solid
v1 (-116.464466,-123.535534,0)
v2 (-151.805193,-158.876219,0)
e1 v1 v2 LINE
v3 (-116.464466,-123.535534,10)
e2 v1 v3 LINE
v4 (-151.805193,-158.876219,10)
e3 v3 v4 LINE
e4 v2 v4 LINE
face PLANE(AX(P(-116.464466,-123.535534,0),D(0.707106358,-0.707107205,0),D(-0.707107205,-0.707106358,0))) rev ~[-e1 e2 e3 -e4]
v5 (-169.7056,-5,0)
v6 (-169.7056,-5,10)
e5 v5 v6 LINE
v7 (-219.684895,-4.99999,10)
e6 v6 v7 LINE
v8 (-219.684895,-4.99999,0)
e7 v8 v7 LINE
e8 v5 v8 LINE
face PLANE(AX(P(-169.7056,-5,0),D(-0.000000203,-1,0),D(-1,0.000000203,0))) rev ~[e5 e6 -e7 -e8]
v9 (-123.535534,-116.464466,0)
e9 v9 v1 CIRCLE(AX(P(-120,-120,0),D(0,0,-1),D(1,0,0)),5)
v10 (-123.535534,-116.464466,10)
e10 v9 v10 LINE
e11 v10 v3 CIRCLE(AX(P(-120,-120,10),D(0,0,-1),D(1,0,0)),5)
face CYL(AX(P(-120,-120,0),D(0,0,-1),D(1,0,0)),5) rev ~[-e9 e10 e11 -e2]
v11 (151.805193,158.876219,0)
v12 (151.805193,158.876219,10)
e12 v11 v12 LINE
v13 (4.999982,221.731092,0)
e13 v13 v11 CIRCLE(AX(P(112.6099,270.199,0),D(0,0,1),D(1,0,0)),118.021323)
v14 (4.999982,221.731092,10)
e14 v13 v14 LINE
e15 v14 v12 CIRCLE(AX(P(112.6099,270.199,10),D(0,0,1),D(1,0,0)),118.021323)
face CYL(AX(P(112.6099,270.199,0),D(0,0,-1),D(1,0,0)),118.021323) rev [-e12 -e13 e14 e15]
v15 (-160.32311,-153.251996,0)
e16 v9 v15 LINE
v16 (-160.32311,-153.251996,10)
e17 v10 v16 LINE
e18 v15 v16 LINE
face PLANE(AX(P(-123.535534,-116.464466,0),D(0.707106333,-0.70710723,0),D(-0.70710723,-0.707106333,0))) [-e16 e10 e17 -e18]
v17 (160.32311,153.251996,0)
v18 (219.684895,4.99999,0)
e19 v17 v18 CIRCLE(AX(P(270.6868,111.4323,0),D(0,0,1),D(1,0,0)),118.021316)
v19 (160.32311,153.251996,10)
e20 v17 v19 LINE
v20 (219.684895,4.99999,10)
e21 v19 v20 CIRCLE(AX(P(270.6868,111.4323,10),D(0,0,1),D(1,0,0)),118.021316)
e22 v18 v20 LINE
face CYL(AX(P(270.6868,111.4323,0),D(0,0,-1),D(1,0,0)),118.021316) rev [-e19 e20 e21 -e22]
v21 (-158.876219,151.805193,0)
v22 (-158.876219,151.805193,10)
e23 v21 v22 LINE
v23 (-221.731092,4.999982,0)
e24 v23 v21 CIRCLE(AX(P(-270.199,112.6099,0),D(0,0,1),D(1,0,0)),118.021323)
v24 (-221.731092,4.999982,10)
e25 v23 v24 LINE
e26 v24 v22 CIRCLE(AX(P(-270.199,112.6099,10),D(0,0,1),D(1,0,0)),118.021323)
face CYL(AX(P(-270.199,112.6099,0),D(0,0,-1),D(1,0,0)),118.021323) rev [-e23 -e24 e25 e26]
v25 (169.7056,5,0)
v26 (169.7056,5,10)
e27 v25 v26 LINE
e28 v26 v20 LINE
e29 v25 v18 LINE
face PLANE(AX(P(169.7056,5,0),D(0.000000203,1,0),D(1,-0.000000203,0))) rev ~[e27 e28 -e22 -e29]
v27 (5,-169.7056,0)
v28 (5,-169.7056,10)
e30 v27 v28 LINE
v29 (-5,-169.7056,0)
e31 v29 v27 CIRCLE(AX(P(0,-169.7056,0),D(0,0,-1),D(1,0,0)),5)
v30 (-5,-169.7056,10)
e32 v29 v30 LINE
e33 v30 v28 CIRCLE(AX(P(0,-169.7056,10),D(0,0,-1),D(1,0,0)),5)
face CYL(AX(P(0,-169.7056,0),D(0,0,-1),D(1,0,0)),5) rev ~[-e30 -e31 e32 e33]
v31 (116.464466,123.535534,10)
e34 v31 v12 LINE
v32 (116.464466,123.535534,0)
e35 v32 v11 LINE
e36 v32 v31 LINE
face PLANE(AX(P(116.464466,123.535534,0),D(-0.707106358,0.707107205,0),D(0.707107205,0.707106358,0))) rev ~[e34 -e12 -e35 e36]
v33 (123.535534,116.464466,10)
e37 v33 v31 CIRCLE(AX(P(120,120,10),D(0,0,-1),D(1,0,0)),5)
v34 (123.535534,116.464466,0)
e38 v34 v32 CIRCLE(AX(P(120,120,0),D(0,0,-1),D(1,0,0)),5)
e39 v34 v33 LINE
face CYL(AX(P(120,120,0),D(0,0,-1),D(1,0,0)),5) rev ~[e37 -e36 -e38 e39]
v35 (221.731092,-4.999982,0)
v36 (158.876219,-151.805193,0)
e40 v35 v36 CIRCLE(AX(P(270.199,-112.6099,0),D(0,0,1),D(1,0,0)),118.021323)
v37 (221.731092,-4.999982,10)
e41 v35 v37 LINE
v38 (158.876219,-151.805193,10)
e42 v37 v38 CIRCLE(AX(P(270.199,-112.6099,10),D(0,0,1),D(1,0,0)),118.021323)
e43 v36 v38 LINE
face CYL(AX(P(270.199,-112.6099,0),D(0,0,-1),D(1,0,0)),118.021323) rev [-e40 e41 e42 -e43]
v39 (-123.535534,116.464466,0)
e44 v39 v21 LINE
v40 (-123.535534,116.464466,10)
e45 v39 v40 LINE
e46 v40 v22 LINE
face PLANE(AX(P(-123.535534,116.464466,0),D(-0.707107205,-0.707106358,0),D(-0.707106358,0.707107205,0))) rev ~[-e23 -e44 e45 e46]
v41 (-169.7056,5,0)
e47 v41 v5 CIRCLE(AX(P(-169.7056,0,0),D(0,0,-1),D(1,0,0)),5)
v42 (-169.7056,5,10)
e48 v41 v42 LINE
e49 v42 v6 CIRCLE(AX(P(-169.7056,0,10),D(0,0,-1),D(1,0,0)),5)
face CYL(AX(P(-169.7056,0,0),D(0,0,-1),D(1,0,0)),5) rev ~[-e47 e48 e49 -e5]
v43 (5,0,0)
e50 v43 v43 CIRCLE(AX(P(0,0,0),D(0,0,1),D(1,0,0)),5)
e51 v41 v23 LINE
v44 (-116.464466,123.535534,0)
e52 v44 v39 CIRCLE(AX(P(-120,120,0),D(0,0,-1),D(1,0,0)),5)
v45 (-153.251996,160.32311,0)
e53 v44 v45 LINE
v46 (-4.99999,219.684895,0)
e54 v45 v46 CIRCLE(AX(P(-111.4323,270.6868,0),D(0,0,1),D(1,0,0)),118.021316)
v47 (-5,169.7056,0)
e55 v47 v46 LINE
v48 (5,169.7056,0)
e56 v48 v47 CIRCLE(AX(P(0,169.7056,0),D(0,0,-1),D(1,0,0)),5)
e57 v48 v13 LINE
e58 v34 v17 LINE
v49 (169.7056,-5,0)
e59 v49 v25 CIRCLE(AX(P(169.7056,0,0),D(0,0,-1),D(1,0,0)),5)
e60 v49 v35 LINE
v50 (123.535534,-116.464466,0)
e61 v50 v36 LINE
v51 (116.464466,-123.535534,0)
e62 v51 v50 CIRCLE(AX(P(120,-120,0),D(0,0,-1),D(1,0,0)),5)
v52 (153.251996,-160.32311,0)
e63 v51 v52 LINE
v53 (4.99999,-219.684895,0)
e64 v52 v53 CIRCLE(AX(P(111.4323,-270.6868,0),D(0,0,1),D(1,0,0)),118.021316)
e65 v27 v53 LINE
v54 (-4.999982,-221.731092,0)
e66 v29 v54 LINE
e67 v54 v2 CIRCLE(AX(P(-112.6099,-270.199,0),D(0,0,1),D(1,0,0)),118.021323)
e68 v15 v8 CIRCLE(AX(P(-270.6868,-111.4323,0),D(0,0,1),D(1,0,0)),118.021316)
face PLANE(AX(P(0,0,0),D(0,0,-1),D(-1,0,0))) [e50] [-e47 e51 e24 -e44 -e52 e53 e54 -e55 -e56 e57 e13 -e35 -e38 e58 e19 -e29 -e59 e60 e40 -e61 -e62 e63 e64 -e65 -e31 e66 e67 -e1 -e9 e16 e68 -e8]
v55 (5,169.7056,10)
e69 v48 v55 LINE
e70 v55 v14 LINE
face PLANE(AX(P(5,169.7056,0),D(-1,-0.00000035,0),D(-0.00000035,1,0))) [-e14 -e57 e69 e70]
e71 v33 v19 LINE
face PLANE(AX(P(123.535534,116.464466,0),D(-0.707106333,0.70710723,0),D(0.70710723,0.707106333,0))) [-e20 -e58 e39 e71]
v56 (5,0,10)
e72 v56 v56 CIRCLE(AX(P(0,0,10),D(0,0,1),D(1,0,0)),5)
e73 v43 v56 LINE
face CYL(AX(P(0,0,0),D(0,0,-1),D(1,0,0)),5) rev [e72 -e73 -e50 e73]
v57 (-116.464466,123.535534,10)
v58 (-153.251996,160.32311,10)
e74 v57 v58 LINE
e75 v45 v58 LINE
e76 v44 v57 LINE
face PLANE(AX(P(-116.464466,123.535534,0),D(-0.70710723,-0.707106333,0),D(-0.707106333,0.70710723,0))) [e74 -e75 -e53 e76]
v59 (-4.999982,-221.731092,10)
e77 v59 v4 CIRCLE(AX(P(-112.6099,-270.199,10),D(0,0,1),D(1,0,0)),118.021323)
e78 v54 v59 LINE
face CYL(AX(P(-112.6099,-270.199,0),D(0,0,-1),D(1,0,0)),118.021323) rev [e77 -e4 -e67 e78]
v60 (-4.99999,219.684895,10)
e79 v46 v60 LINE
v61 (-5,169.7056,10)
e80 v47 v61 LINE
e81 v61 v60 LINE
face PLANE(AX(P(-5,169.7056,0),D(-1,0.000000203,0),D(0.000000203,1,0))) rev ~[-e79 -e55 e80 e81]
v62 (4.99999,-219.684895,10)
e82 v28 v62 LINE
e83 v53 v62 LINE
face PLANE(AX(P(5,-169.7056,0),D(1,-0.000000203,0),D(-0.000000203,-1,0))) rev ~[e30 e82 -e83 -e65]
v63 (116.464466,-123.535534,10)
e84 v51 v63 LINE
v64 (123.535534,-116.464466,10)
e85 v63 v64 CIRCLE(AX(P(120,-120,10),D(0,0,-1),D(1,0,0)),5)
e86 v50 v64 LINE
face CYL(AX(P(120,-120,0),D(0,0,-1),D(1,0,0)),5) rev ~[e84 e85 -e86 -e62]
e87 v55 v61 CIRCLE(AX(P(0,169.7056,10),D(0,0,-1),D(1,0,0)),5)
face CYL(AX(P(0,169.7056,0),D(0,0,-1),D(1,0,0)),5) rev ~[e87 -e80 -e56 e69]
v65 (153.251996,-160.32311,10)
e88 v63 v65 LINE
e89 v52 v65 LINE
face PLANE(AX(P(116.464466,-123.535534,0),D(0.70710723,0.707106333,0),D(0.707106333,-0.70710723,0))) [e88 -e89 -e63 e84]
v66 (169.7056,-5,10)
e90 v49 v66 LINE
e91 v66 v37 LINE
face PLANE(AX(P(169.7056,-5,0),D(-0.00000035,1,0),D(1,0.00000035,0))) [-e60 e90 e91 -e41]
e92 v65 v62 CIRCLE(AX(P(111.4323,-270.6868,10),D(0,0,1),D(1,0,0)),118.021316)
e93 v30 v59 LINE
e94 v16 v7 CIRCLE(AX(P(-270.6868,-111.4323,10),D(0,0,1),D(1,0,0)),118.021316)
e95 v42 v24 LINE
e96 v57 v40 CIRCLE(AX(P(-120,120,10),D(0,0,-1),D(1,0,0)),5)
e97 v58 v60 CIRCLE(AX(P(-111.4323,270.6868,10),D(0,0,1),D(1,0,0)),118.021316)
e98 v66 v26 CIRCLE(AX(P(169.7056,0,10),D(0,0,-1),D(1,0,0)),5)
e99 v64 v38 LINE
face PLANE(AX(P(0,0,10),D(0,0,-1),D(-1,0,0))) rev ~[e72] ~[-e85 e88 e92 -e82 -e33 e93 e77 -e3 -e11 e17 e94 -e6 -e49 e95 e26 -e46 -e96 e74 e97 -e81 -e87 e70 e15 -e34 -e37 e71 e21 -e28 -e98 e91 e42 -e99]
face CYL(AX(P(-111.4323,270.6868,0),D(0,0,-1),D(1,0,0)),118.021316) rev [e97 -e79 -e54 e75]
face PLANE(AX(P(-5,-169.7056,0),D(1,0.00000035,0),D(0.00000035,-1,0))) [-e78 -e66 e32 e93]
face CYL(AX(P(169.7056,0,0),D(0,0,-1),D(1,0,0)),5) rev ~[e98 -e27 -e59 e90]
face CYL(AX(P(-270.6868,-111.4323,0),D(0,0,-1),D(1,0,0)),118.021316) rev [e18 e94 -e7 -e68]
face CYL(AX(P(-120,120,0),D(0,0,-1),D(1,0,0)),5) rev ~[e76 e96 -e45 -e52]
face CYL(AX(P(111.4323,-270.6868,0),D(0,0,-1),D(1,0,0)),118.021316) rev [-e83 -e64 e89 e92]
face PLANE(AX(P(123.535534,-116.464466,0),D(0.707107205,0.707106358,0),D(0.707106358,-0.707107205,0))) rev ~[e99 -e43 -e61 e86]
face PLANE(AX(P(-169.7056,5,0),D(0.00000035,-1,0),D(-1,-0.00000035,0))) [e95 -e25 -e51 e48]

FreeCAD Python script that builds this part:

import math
import FreeCAD as App
import Part
import Sketcher
Q = App.Units.Quantity

doc = App.newDocument("Part")
body = doc.addObject("PartDesign::Body", "Body")

# Sketch on XY plane
sketch1 = body.newObject("Sketcher::SketchObject", "Sketch")
sketch1.AttachmentSupport = (doc.getObject("XY_Plane"), [""])
sketch1.MapMode = "FlatFace"
sketch1.addGeometry(Part.LineSegment(App.Vector(221.7, -5, 0), App.Vector(169.7, -5, 0)), False)
sketch1.addGeometry(Part.ArcOfCircle(Part.Circle(App.Vector(169.7, 0, 0), App.Vector(0, 0, 1), 5), math.radians(90), math.radians(270)), False)
sketch1.addGeometry(Part.LineSegment(App.Vector(169.7, 5, 0), App.Vector(219.7, 5, 0)), False)
sketch1.addGeometry(Part.ArcOfCircle(Part.Circle(App.Vector(270.7, 111.4, 0), App.Vector(0, 0, 1), 118), math.radians(159), math.radians(244)), False)
sketch1.addGeometry(Part.LineSegment(App.Vector(160.3, 153.3, 0), App.Vector(123.5, 116.5, 0)), False)
sketch1.addGeometry(Part.ArcOfCircle(Part.Circle(App.Vector(120, 120, 0), App.Vector(0, 0, 1), 5), math.radians(135), math.radians(315)), False)
sketch1.addGeometry(Part.LineSegment(App.Vector(116.5, 123.5, 0), App.Vector(151.8, 158.9, 0)), False)
sketch1.addGeometry(Part.ArcOfCircle(Part.Circle(App.Vector(112.6, 270.2, 0), App.Vector(0, 0, 1), 118), math.radians(-156), math.radians(-71)), False)
sketch1.addGeometry(Part.LineSegment(App.Vector(5, 221.7, 0), App.Vector(5, 169.7, 0)), False)
sketch1.addGeometry(Part.ArcOfCircle(Part.Circle(App.Vector(0, 169.7, 0), App.Vector(0, 0, 1), 5), math.radians(180), math.radians(360)), False)
sketch1.addGeometry(Part.LineSegment(App.Vector(-5, 169.7, 0), App.Vector(-5, 219.7, 0)), False)
sketch1.addGeometry(Part.ArcOfCircle(Part.Circle(App.Vector(-111.4, 270.7, 0), App.Vector(0, 0, 1), 118), math.radians(-111), math.radians(-26)), False)
sketch1.addGeometry(Part.LineSegment(App.Vector(-153.3, 160.3, 0), App.Vector(-116.5, 123.5, 0)), False)
sketch1.addGeometry(Part.ArcOfCircle(Part.Circle(App.Vector(-120, 120, 0), App.Vector(0, 0, 1), 5), math.radians(-135), math.radians(45)), False)
sketch1.addGeometry(Part.LineSegment(App.Vector(-123.5, 116.5, 0), App.Vector(-158.9, 151.8, 0)), False)
sketch1.addGeometry(Part.ArcOfCircle(Part.Circle(App.Vector(-270.2, 112.6, 0), App.Vector(0, 0, 1), 118), math.radians(-66), math.radians(19)), False)
sketch1.addGeometry(Part.LineSegment(App.Vector(-221.7, 5, 0), App.Vector(-169.7, 5, 0)), False)
sketch1.addGeometry(Part.ArcOfCircle(Part.Circle(App.Vector(-169.7, 0, 0), App.Vector(0, 0, 1), 5), math.radians(-90), math.radians(90)), False)
sketch1.addGeometry(Part.LineSegment(App.Vector(-169.7, -5, 0), App.Vector(-219.7, -5, 0)), False)
sketch1.addGeometry(Part.ArcOfCircle(Part.Circle(App.Vector(-270.7, -111.4, 0), App.Vector(0, 0, 1), 118), math.radians(-21), math.radians(64)), False)
sketch1.addGeometry(Part.LineSegment(App.Vector(-160.3, -153.3, 0), App.Vector(-123.5, -116.5, 0)), False)
sketch1.addGeometry(Part.ArcOfCircle(Part.Circle(App.Vector(-120, -120, 0), App.Vector(0, 0, 1), 5), math.radians(-45), math.radians(135)), False)
sketch1.addGeometry(Part.LineSegment(App.Vector(-116.5, -123.5, 0), App.Vector(-151.8, -158.9, 0)), False)
sketch1.addGeometry(Part.ArcOfCircle(Part.Circle(App.Vector(-112.6, -270.2, 0), App.Vector(0, 0, 1), 118), math.radians(24), math.radians(109)), False)
sketch1.addGeometry(Part.LineSegment(App.Vector(-5, -221.7, 0), App.Vector(-5, -169.7, 0)), False)
sketch1.addGeometry(Part.ArcOfCircle(Part.Circle(App.Vector(0, -169.7, 0), App.Vector(0, 0, 1), 5), math.radians(0), math.radians(180)), False)
sketch1.addGeometry(Part.LineSegment(App.Vector(5, -169.7, 0), App.Vector(5, -219.7, 0)), False)
sketch1.addGeometry(Part.ArcOfCircle(Part.Circle(App.Vector(111.4, -270.7, 0), App.Vector(0, 0, 1), 118), math.radians(69), math.radians(154)), False)
sketch1.addGeometry(Part.LineSegment(App.Vector(153.3, -160.3, 0), App.Vector(116.5, -123.5, 0)), False)
sketch1.addGeometry(Part.ArcOfCircle(Part.Circle(App.Vector(120, -120, 0), App.Vector(0, 0, 1), 5), math.radians(45), math.radians(225)), False)
sketch1.addGeometry(Part.LineSegment(App.Vector(123.5, -116.5, 0), App.Vector(158.9, -151.8, 0)), False)
sketch1.addGeometry(Part.ArcOfCircle(Part.Circle(App.Vector(270.2, -112.6, 0), App.Vector(0, 0, 1), 118), math.radians(114), math.radians(199)), False)
sketch1.addGeometry(Part.Circle(App.Vector(0, 0, 0), App.Vector(0, 0, 1), 5), False)
sketch1.addConstraint(Sketcher.Constraint("Tangent", 0, 2, 1, 2))
sketch1.addConstraint(Sketcher.Constraint("Tangent", 1, 1, 2, 1))
sketch1.addConstraint(Sketcher.Constraint("Coincident", 2, 2, 3, 2))
sketch1.addConstraint(Sketcher.Constraint("Coincident", 3, 1, 4, 1))
sketch1.addConstraint(Sketcher.Constraint("Tangent", 4, 2, 5, 2))
sketch1.addConstraint(Sketcher.Constraint("Tangent", 5, 1, 6, 1))
sketch1.addConstraint(Sketcher.Constraint("Coincident", 6, 2, 7, 2))
sketch1.addConstraint(Sketcher.Constraint("Coincident", 7, 1, 8, 1))
sketch1.addConstraint(Sketcher.Constraint("Tangent", 8, 2, 9, 2))
sketch1.addConstraint(Sketcher.Constraint("Tangent", 9, 1, 10, 1))
sketch1.addConstraint(Sketcher.Constraint("Coincident", 10, 2, 11, 2))
sketch1.addConstraint(Sketcher.Constraint("Coincident", 11, 1, 12, 1))
sketch1.addConstraint(Sketcher.Constraint("Tangent", 12, 2, 13, 2))
sketch1.addConstraint(Sketcher.Constraint("Tangent", 13, 1, 14, 1))
sketch1.addConstraint(Sketcher.Constraint("Coincident", 14, 2, 15, 2))
sketch1.addConstraint(Sketcher.Constraint("Coincident", 15, 1, 16, 1))
sketch1.addConstraint(Sketcher.Constraint("Tangent", 16, 2, 17, 2))
sketch1.addConstraint(Sketcher.Constraint("Tangent", 17, 1, 18, 1))
sketch1.addConstraint(Sketcher.Constraint("Coincident", 18, 2, 19, 2))
sketch1.addConstraint(Sketcher.Constraint("Coincident", 19, 1, 20, 1))
sketch1.addConstraint(Sketcher.Constraint("Tangent", 20, 2, 21, 2))
sketch1.addConstraint(Sketcher.Constraint("Tangent", 21, 1, 22, 1))
sketch1.addConstraint(Sketcher.Constraint("Coincident", 22, 2, 23, 2))
sketch1.addConstraint(Sketcher.Constraint("Coincident", 23, 1, 24, 1))
sketch1.addConstraint(Sketcher.Constraint("Tangent", 24, 2, 25, 2))
sketch1.addConstraint(Sketcher.Constraint("Tangent", 25, 1, 26, 1))
sketch1.addConstraint(Sketcher.Constraint("Coincident", 26, 2, 27, 2))
sketch1.addConstraint(Sketcher.Constraint("Coincident", 27, 1, 28, 1))
sketch1.addConstraint(Sketcher.Constraint("Tangent", 28, 2, 29, 2))
sketch1.addConstraint(Sketcher.Constraint("Tangent", 29, 1, 30, 1))
sketch1.addConstraint(Sketcher.Constraint("Coincident", 30, 2, 31, 2))
sketch1.addConstraint(Sketcher.Constraint("Coincident", 31, 1, 0, 1))
sketch1.addConstraint(Sketcher.Constraint("Horizontal", 0))
sketch1.addConstraint(Sketcher.Constraint("Horizontal", 2))
sketch1.addConstraint(Sketcher.Constraint("Vertical", 8))
sketch1.addConstraint(Sketcher.Constraint("Vertical", 10))
sketch1.addConstraint(Sketcher.Constraint("Horizontal", 16))
sketch1.addConstraint(Sketcher.Constraint("Horizontal", 18))
sketch1.addConstraint(Sketcher.Constraint("Vertical", 24))
sketch1.addConstraint(Sketcher.Constraint("Vertical", 26))
sketch1.addConstraint(Sketcher.Constraint("Coincident", 32, 3, -1, 1))
sketch1.addConstraint(Sketcher.Constraint("Equal", 1, 5))
sketch1.addConstraint(Sketcher.Constraint("Equal", 3, 7))
sketch1.addConstraint(Sketcher.Constraint("Equal", 5, 9))
sketch1.addConstraint(Sketcher.Constraint("Equal", 7, 11))
sketch1.addConstraint(Sketcher.Constraint("Equal", 9, 13))
sketch1.addConstraint(Sketcher.Constraint("Equal", 11, 15))
sketch1.addConstraint(Sketcher.Constraint("Equal", 13, 17))
sketch1.addConstraint(Sketcher.Constraint("Equal", 15, 19))
sketch1.addConstraint(Sketcher.Constraint("Equal", 17, 21))
sketch1.addConstraint(Sketcher.Constraint("Equal", 19, 23))
sketch1.addConstraint(Sketcher.Constraint("Equal", 21, 25))
sketch1.addConstraint(Sketcher.Constraint("Equal", 23, 27))
sketch1.addConstraint(Sketcher.Constraint("Equal", 25, 29))
sketch1.addConstraint(Sketcher.Constraint("Equal", 27, 31))
sketch1.addConstraint(Sketcher.Constraint("Equal", 29, 32))
sketch1.addConstraint(Sketcher.Constraint("Symmetric", 1, 3, 17, 3, -1, 1))
sketch1.addConstraint(Sketcher.Constraint("Symmetric", 3, 3, 19, 3, -1, 1))
sketch1.addConstraint(Sketcher.Constraint("Symmetric", 5, 3, 21, 3, -1, 1))
sketch1.addConstraint(Sketcher.Constraint("Symmetric", 7, 3, 23, 3, -1, 1))
sketch1.addConstraint(Sketcher.Constraint("Symmetric", 9, 3, 25, 3, -1, 1))
sketch1.addConstraint(Sketcher.Constraint("Symmetric", 11, 3, 27, 3, -1, 1))
sketch1.addConstraint(Sketcher.Constraint("Symmetric", 13, 3, 29, 3, -1, 1))
sketch1.addConstraint(Sketcher.Constraint("Symmetric", 15, 3, 31, 3, -1, 1))
sketch1.addConstraint(Sketcher.Constraint("Symmetric", 5, 3, 13, 3, -2))
sketch1.addConstraint(Sketcher.Constraint("PointOnObject", 1, 3, -1))
sketch1.addConstraint(Sketcher.Constraint("PointOnObject", 9, 3, -2))
sketch1.addConstraint(Sketcher.Constraint("Parallel", 4, 6))
sketch1.addConstraint(Sketcher.Constraint("Perpendicular", 6, 12))
sketch1.addConstraint(Sketcher.Constraint("Parallel", 12, 14))
sketch1.addConstraint(Sketcher.Constraint("Perpendicular", 14, 20))
sketch1.addConstraint(Sketcher.Constraint("Parallel", 20, 22))
sketch1.addConstraint(Sketcher.Constraint("Perpendicular", 22, 28))
sketch1.addConstraint(Sketcher.Constraint("Parallel", 28, 30))
sketch1.addConstraint(Sketcher.Constraint("Horizontal", 5, 1, 12, 2))
sketch1.addConstraint(Sketcher.Constraint("Equal", 16, 8))
sketch1.addConstraint(Sketcher.Constraint("Equal", 18, 10))
sketch1.addConstraint(Sketcher.Constraint("Equal", 4, 12))
sketch1.addConstraint(Sketcher.Constraint("Equal", 6, 14))
sketch1.addConstraint(Sketcher.Constraint("Diameter", 32, Q("10 mm")))
sketch1.addConstraint(Sketcher.Constraint("DistanceX", -1, 1, 5, 3, Q("120 mm")))
sketch1.addConstraint(Sketcher.Constraint("DistanceY", -1, 1, 5, 3, Q("120 mm")))
sketch1.addConstraint(Sketcher.Constraint("Radius", 3, Q("118.0213 mm")))
sketch1.addConstraint(Sketcher.Constraint("DistanceX", -1, 1, 7, 3, Q("112.61 mm")))
sketch1.addConstraint(Sketcher.Constraint("DistanceY", -1, 1, 15, 3, Q("112.61 mm")))
sketch1.addConstraint(Sketcher.Constraint("DistanceX", 4, 2, 1, 1, Q("46.17 mm")))
sketch1.addConstraint(Sketcher.Constraint("DistanceX", 0, 2, 0, 1, Q("52.0255 mm")))
sketch1.addConstraint(Sketcher.Constraint("DistanceX", 2, 1, 2, 2, Q("49.9793 mm")))
sketch1.addConstraint(Sketcher.Constraint("DistanceX", -1, 1, 3, 1, Q("160.323 mm")))
pad1 = body.newObject("PartDesign::Pad", "Pad")
pad1.Profile = sketch1
pad1.Length = 10

doc.recompute()
